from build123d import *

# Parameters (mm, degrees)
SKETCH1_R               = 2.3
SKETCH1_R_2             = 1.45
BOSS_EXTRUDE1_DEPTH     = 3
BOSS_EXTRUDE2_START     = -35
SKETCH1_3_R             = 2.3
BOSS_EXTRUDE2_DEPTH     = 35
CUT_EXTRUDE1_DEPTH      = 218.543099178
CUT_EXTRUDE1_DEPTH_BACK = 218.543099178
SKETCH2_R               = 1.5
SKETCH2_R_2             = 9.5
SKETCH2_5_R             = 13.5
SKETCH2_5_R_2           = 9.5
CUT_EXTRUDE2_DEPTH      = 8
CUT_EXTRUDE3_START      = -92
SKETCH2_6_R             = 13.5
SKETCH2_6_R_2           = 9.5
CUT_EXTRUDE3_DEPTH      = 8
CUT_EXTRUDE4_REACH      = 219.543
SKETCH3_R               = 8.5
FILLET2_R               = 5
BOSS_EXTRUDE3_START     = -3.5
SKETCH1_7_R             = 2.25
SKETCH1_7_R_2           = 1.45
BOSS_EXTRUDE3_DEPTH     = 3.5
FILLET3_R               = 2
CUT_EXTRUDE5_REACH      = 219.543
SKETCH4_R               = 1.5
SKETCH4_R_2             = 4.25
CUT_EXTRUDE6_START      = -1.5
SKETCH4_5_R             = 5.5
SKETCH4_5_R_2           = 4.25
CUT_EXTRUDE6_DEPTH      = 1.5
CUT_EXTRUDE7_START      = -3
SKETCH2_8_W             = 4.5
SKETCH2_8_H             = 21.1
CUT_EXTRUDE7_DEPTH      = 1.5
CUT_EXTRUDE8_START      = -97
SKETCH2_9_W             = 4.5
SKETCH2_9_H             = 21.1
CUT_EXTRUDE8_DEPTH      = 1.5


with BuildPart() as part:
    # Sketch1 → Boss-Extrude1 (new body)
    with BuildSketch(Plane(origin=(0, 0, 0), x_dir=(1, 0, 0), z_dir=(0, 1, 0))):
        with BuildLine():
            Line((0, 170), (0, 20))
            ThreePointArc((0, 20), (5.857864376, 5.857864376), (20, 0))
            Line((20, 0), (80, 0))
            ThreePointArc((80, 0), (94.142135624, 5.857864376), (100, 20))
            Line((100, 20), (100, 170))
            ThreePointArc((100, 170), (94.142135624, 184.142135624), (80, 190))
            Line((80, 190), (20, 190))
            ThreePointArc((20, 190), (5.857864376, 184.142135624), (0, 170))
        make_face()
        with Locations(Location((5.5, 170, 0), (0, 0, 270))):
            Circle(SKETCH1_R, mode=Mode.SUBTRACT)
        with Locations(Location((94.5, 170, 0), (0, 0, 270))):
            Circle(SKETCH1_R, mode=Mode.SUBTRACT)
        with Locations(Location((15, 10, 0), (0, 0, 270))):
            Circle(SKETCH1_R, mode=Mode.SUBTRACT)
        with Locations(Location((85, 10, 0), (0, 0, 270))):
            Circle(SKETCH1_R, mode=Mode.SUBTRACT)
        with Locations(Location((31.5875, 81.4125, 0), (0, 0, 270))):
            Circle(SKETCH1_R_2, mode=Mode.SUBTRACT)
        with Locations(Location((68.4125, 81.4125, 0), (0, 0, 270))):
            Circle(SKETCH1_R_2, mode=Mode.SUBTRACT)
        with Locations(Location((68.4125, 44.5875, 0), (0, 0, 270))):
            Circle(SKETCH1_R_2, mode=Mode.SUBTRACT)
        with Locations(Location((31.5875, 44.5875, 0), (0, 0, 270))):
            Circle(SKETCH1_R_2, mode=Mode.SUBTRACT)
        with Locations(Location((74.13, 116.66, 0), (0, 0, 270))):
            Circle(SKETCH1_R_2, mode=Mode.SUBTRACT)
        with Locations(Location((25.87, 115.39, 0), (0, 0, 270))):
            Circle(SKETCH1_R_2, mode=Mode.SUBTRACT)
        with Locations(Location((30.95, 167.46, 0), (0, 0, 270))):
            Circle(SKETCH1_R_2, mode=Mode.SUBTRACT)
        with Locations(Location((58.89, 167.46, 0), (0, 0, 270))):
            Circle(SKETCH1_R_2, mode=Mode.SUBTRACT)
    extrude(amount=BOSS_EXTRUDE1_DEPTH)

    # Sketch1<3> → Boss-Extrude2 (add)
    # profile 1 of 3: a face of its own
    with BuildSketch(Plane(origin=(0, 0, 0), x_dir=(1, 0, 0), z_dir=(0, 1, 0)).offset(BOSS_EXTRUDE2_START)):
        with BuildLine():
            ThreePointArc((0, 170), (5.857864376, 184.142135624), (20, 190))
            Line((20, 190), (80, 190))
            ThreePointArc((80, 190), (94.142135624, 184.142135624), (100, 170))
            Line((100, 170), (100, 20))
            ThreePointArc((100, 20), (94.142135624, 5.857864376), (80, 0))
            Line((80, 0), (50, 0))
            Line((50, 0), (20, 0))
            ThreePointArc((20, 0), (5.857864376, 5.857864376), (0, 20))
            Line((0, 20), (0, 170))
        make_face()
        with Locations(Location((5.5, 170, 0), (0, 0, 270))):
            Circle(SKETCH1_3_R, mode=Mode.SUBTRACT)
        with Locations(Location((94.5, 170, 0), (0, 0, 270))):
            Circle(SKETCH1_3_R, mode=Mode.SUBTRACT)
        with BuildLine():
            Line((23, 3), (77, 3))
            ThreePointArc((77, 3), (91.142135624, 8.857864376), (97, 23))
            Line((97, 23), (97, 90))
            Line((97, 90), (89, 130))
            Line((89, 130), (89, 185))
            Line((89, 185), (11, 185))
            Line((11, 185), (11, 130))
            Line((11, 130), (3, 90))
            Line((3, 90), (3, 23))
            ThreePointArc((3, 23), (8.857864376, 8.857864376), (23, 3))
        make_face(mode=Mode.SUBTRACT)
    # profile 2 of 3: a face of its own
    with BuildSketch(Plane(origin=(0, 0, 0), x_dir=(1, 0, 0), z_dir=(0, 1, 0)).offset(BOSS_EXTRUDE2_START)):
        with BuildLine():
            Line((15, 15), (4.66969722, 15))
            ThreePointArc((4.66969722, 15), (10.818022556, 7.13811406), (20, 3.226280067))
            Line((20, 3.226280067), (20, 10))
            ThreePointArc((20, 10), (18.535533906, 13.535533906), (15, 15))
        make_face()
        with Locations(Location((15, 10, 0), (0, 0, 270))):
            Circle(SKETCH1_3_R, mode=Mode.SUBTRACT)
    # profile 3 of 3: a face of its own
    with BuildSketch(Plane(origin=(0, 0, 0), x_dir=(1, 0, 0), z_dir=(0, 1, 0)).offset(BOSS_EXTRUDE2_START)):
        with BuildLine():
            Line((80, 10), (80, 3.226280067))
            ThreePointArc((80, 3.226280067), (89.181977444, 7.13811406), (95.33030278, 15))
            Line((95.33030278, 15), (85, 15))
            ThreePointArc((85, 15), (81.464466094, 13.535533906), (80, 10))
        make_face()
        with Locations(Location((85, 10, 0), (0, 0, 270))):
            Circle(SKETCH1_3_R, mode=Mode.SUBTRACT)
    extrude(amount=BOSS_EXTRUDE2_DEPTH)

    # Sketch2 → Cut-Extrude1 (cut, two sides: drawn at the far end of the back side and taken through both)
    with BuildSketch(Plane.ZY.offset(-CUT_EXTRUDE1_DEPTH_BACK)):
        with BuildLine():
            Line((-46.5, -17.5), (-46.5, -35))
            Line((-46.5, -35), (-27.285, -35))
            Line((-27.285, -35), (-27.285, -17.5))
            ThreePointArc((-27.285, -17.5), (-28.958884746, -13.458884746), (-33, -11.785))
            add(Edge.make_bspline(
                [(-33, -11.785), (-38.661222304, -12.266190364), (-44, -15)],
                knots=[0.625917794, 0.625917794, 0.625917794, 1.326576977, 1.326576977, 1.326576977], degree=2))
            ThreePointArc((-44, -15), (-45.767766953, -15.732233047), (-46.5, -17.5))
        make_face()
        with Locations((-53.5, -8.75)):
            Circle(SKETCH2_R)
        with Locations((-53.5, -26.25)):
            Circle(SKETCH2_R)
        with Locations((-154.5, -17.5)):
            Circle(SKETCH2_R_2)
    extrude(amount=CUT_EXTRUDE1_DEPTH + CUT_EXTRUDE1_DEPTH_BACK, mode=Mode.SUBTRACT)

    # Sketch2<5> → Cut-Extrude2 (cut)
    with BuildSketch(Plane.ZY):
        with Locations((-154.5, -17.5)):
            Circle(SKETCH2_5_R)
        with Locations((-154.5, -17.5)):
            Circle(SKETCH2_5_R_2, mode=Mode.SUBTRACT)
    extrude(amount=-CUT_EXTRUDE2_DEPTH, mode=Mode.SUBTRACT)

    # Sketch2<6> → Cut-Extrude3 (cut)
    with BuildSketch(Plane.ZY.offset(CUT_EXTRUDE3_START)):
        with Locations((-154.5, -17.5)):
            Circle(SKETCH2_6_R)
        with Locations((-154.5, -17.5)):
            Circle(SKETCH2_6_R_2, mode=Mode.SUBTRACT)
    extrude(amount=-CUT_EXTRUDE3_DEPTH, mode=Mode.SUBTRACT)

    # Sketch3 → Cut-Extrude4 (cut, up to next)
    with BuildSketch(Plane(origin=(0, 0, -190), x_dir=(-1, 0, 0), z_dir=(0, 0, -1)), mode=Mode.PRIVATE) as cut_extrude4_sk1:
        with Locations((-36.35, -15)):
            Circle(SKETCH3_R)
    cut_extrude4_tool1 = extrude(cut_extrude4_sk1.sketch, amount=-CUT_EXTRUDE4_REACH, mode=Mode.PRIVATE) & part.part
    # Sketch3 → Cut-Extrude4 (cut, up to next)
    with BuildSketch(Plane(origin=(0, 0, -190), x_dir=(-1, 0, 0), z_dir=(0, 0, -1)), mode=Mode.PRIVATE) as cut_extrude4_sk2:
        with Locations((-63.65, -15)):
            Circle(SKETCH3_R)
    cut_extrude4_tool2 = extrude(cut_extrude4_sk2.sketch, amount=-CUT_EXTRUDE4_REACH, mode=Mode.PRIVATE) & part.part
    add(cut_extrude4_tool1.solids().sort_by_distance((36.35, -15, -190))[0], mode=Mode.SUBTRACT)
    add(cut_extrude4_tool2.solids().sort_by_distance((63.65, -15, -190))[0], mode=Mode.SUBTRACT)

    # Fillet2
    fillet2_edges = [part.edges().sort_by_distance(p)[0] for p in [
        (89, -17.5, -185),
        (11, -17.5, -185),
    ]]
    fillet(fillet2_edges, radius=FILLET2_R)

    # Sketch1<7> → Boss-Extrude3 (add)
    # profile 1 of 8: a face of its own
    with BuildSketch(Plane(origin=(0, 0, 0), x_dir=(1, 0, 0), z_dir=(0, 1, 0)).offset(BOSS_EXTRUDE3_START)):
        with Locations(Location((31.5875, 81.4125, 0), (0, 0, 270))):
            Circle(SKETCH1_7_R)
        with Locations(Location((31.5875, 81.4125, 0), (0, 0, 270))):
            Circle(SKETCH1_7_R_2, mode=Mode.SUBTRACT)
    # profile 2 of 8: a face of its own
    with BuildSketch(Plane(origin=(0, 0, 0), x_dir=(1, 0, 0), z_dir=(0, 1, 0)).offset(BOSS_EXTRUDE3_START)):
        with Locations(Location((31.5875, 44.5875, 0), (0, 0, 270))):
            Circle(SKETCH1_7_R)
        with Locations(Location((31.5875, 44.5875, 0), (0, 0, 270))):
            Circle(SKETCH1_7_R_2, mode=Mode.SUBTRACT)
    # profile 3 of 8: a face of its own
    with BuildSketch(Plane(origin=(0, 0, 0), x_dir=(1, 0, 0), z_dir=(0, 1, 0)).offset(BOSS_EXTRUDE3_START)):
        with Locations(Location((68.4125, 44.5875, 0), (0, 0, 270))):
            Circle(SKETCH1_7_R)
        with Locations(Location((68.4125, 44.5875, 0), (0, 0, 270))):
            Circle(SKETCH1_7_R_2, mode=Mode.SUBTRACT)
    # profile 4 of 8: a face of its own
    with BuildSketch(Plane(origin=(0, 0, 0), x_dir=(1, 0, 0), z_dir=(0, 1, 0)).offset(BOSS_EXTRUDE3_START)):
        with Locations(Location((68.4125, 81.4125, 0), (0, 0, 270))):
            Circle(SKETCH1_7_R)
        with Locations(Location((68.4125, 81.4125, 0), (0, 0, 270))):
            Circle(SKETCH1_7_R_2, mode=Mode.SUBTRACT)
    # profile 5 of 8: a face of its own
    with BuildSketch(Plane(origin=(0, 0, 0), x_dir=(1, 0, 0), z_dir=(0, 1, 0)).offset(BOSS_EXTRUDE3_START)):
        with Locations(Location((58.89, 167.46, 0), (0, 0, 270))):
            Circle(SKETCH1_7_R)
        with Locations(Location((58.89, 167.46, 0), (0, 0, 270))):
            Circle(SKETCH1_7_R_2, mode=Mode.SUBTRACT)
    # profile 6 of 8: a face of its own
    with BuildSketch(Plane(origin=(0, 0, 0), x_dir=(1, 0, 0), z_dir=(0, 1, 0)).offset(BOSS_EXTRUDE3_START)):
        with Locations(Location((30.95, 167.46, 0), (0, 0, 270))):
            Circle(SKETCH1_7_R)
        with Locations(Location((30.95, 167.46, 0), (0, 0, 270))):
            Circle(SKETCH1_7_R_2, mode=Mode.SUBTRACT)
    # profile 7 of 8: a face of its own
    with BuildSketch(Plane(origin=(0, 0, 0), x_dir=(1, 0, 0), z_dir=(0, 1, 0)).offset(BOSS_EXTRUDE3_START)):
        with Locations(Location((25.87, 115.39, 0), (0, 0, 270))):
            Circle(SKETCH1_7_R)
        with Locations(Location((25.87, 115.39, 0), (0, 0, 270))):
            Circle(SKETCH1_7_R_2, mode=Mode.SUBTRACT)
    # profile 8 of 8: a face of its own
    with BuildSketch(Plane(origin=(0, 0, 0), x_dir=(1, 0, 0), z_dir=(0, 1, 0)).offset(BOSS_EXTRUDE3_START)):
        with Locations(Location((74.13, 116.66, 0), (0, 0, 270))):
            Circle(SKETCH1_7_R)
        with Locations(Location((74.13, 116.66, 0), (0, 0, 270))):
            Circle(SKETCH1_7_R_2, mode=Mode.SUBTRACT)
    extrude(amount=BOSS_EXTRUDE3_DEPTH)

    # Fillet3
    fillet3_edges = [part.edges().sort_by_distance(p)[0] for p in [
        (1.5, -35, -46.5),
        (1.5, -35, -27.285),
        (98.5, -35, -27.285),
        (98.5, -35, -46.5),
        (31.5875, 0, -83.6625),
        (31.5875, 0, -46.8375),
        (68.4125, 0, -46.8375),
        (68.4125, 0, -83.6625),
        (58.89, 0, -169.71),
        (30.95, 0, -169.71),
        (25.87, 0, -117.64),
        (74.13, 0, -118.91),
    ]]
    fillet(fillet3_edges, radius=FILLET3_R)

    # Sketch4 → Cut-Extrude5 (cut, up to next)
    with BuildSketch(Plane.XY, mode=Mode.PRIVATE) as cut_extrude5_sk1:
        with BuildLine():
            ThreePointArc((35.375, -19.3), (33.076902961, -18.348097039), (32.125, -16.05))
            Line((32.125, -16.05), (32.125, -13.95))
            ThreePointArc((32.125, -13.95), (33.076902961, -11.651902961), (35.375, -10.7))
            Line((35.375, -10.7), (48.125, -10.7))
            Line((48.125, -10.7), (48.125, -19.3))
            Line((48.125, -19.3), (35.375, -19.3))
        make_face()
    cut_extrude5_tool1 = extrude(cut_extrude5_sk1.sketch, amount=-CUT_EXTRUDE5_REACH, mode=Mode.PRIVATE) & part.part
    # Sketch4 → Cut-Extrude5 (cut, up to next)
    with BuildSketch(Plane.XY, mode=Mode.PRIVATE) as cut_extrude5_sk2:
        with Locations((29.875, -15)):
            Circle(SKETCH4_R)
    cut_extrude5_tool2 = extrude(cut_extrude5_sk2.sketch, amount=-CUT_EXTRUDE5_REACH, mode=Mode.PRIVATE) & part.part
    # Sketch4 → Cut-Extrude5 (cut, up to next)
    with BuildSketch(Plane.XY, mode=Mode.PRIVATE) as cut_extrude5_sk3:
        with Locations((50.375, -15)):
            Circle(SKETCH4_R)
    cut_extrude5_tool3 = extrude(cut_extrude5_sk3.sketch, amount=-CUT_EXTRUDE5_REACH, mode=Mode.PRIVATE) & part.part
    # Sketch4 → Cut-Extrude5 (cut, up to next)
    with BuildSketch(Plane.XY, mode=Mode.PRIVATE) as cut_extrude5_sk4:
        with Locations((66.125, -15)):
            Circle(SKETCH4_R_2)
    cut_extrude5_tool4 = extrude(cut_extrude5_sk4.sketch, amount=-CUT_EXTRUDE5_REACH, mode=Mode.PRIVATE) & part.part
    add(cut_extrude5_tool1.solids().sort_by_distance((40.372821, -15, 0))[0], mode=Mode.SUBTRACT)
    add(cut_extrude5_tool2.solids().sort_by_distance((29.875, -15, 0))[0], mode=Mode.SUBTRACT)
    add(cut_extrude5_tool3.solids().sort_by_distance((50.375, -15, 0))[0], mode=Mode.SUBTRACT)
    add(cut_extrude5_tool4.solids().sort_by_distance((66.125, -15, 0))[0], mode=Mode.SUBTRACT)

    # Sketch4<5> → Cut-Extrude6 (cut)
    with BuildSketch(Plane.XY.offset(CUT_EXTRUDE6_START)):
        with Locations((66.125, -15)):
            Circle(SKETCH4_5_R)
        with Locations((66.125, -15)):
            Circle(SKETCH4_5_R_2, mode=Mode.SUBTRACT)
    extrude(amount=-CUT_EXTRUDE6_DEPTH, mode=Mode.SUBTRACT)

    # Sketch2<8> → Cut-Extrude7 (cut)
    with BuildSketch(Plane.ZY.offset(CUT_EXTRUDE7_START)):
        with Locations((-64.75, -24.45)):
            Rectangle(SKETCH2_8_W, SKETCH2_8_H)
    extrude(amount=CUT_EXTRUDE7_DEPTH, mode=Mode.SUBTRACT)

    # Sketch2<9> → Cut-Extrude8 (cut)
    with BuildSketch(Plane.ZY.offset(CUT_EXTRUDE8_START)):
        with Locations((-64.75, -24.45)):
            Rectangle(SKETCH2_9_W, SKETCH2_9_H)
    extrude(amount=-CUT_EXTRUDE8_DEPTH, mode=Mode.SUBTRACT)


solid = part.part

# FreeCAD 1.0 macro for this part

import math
import FreeCAD as App
import Part
import Sketcher
Q = App.Units.Quantity


def edges_at(feature, points):
    """Names of the edges that pass closest to the given points."""
    edges = feature.Shape.Edges
    near = lambda p: min(range(len(edges)), key=lambda i: edges[i].distToShape(Part.Vertex(*p))[0])
    return sorted({f"Edge{near(p) + 1}" for p in points})

doc = App.newDocument("Part")
params = doc.addObject("Spreadsheet::Sheet", "Params")
for row, (alias, value) in enumerate([
    ("sketch1_radius", "20 mm"),
    ("sketch1_diameter", "4.6 mm"),
    ("sketch1_diameter2", "2.9 mm"),
    ("sketch1_width", "60 mm"),
    ("sketch1_height", "150 mm"),
    ("pad1_length", "3 mm"),
    ("sketch2_radius", "20 mm"),
    ("sketch2_radius2", "5 mm"),
    ("sketch2_diameter", "4.6 mm"),
    ("sketch2_width", "60 mm"),
    ("sketch2_width2", "78 mm"),
    ("pad2_length", "35 mm"),
    ("sketch3_diameter", "3 mm"),
    ("sketch3_diameter2", "19 mm"),
    ("sketch3_radius", "2.5 mm"),
    ("sketch3_width", "17.5 mm"),
    ("sketch4_diameter", "27 mm"),
    ("sketch4_diameter2", "19 mm"),
    ("pocket2_length", "8 mm"),
    ("sketch5_diameter", "27 mm"),
    ("sketch5_diameter2", "19 mm"),
    ("pocket3_length", "8 mm"),
    ("sketch6_diameter", "17 mm"),
    ("sketch7_diameter", "17 mm"),
    ("fillet_radius", "5 mm"),
    ("sketch8_diameter", "4.5 mm"),
    ("sketch8_diameter2", "2.9 mm"),
    ("pad3_length", "3.5 mm"),
    ("fillet2_radius", "2 mm"),
    ("sketch9_radius", "3.25 mm"),
    ("sketch9_height", "8.6 mm"),
    ("sketch10_diameter", "3 mm"),
    ("sketch11_diameter", "3 mm"),
    ("sketch12_diameter", "8.5 mm"),
    ("sketch13_diameter", "11 mm"),
    ("sketch13_diameter2", "8.5 mm"),
    ("pocket10_length", "1.5 mm"),
    ("sketch14_width", "21.1 mm"),
    ("sketch14_height", "4.5 mm"),
    ("pocket11_length", "1.5 mm"),
    ("sketch15_width", "21.1 mm"),
    ("sketch15_height", "4.5 mm"),
    ("pocket12_length", "1.5 mm"),
], start=1):
    params.set(f"A{row}", alias)
    params.set(f"B{row}", "=" + value)
    params.setAlias(f"B{row}", alias)

body = doc.addObject("PartDesign::Body", "Body")

sketch1 = body.newObject("Sketcher::SketchObject", "Sketch")
sketch1.AttachmentSupport = (doc.getObject("XZ_Plane"), [""])
sketch1.MapMode = "FlatFace"
sketch1.addGeometry([
    Part.LineSegment(App.Vector(0, -170, 0), App.Vector(0, -20, 0)),
    Part.ArcOfCircle(Part.Circle(App.Vector(20, -20, 0), App.Vector(0, 0, 1), 20), math.radians(90), math.radians(180)),
    Part.LineSegment(App.Vector(20, 0, 0), App.Vector(80, 0, 0)),
    Part.ArcOfCircle(Part.Circle(App.Vector(80, -20, 0), App.Vector(0, 0, 1), 20), math.radians(0), math.radians(90)),
    Part.LineSegment(App.Vector(100, -20, 0), App.Vector(100, -170, 0)),
    Part.ArcOfCircle(Part.Circle(App.Vector(80, -170, 0), App.Vector(0, 0, 1), 20), math.radians(-90), math.radians(0)),
    Part.LineSegment(App.Vector(80, -190, 0), App.Vector(20, -190, 0)),
    Part.ArcOfCircle(Part.Circle(App.Vector(20, -170, 0), App.Vector(0, 0, 1), 20), math.radians(180), math.radians(270)),
    Part.Circle(App.Vector(15, -10, 0), App.Vector(0, 0, 1), 2.3),
    Part.Circle(App.Vector(31.6, -44.6, 0), App.Vector(0, 0, 1), 1.4),
    Part.Circle(App.Vector(31.6, -81.4, 0), App.Vector(0, 0, 1), 1.4),
    Part.Circle(App.Vector(68.4, -44.6, 0), App.Vector(0, 0, 1), 1.4),
    Part.Circle(App.Vector(85, -10, 0), App.Vector(0, 0, 1), 2.3),
    Part.Circle(App.Vector(68.4, -81.4, 0), App.Vector(0, 0, 1), 1.4),
    Part.Circle(App.Vector(25.9, -115.4, 0), App.Vector(0, 0, 1), 1.4),
    Part.Circle(App.Vector(5.5, -170, 0), App.Vector(0, 0, 1), 2.3),
    Part.Circle(App.Vector(30.9, -167.5, 0), App.Vector(0, 0, 1), 1.4),
    Part.Circle(App.Vector(74.1, -116.7, 0), App.Vector(0, 0, 1), 1.4),
    Part.Circle(App.Vector(58.9, -167.5, 0), App.Vector(0, 0, 1), 1.4),
    Part.Circle(App.Vector(94.5, -170, 0), App.Vector(0, 0, 1), 2.3),
], False)
sketch1.addConstraint([
    Sketcher.Constraint("Tangent", 0, 2, 1, 2),
    Sketcher.Constraint("Tangent", 1, 1, 2, 1),
    Sketcher.Constraint("Tangent", 2, 2, 3, 2),
    Sketcher.Constraint("Tangent", 3, 1, 4, 1),
    Sketcher.Constraint("Tangent", 4, 2, 5, 2),
    Sketcher.Constraint("Tangent", 5, 1, 6, 1),
    Sketcher.Constraint("Tangent", 6, 2, 7, 2),
    Sketcher.Constraint("Tangent", 7, 1, 0, 1),
    Sketcher.Constraint("Vertical", 0),
    Sketcher.Constraint("Horizontal", 2),
    Sketcher.Constraint("Vertical", 4),
    Sketcher.Constraint("Horizontal", 6),
    Sketcher.Constraint("Equal", 1, 3),
    Sketcher.Constraint("Equal", 3, 5),
    Sketcher.Constraint("Equal", 5, 7),
    Sketcher.Constraint("Equal", 9, 10),
    Sketcher.Constraint("Equal", 10, 11),
    Sketcher.Constraint("Equal", 8, 12),
    Sketcher.Constraint("Equal", 11, 13),
    Sketcher.Constraint("Equal", 13, 14),
    Sketcher.Constraint("Equal", 12, 15),
    Sketcher.Constraint("Equal", 14, 16),
    Sketcher.Constraint("Equal", 16, 17),
    Sketcher.Constraint("Equal", 17, 18),
    Sketcher.Constraint("Equal", 15, 19),
    Sketcher.Constraint("PointOnObject", 0, 2, -2),
    Sketcher.Constraint("PointOnObject", 1, 1, -1),
    Sketcher.Constraint("Horizontal", 9, 3, 11, 3),
    Sketcher.Constraint("Horizontal", 8, 3, 12, 3),
    Sketcher.Constraint("Horizontal", 10, 3, 13, 3),
    Sketcher.Constraint("Horizontal", 7, 3, 15, 3),
    Sketcher.Constraint("Horizontal", 16, 3, 18, 3),
    Sketcher.Constraint("Horizontal", 15, 3, 19, 3),
    Sketcher.Constraint("Vertical", 9, 3, 10, 3),
    Sketcher.Constraint("Vertical", 11, 3, 13, 3),
    Sketcher.Constraint("Radius", 1, Q("20 mm")),
    Sketcher.Constraint("Diameter", 8, Q("4.6 mm")),
    Sketcher.Constraint("Diameter", 9, Q("2.9 mm")),
    Sketcher.Constraint("DistanceX", 2, 1, 2, 2, Q("60 mm")),
    Sketcher.Constraint("DistanceY", 0, 1, 0, 2, Q("150 mm")),
    Sketcher.Constraint("DistanceX", -1, 1, 8, 3, Q("15 mm")),
    Sketcher.Constraint("DistanceY", 8, 3, -1, 1, Q("10 mm")),
    Sketcher.Constraint("DistanceX", -1, 1, 12, 3, Q("85 mm")),
    Sketcher.Constraint("DistanceX", -1, 1, 15, 3, Q("5.5 mm")),
    Sketcher.Constraint("DistanceX", -1, 1, 19, 3, Q("94.5 mm")),
    Sketcher.Constraint("DistanceY", 16, 3, 17, 3, Q("50.8 mm")),
    Sketcher.Constraint("DistanceX", -1, 1, 14, 3, Q("25.87 mm")),
    Sketcher.Constraint("DistanceY", 14, 3, -1, 1, Q("115.39 mm")),
    Sketcher.Constraint("DistanceX", -1, 1, 16, 3, Q("30.95 mm")),
    Sketcher.Constraint("DistanceY", 16, 3, -1, 1, Q("167.46 mm")),
    Sketcher.Constraint("DistanceX", -1, 1, 17, 3, Q("74.13 mm")),
    Sketcher.Constraint("DistanceX", -1, 1, 18, 3, Q("58.89 mm")),
    Sketcher.Constraint("DistanceY", 10, 3, 9, 3, Q("36.825 mm")),
    Sketcher.Constraint("DistanceX", 9, 3, 11, 3, Q("36.825 mm")),
    Sketcher.Constraint("DistanceX", -1, 1, 9, 3, Q("31.5875 mm")),
    Sketcher.Constraint("DistanceY", 9, 3, -1, 1, Q("44.5875 mm")),
])
sketch1.setExpression("Constraints[35]", "Params.sketch1_radius")
sketch1.setExpression("Constraints[36]", "Params.sketch1_diameter")
sketch1.setExpression("Constraints[37]", "Params.sketch1_diameter2")
sketch1.setExpression("Constraints[38]", "Params.sketch1_width")
sketch1.setExpression("Constraints[39]", "Params.sketch1_height")
pad1 = body.newObject("PartDesign::Pad", "Pad")
pad1.Profile = sketch1
pad1.setExpression("Length", "Params.pad1_length")
pad1.Reversed = True

sketch2 = body.newObject("Sketcher::SketchObject", "Sketch001")
sketch2.AttachmentSupport = (doc.getObject("XZ_Plane"), [""])
sketch2.MapMode = "FlatFace"
sketch2.AttachmentOffset = App.Placement(App.Vector(0, 0, 35), App.Rotation())
sketch2.addGeometry([
    Part.ArcOfCircle(Part.Circle(App.Vector(20, -170, 0), App.Vector(0, 0, 1), 20), math.radians(180), math.radians(270)),
    Part.LineSegment(App.Vector(0, -170, 0), App.Vector(0, -20, 0)),
    Part.ArcOfCircle(Part.Circle(App.Vector(20, -20, 0), App.Vector(0, 0, 1), 20), math.radians(90), math.radians(180)),
    Part.LineSegment(App.Vector(20, 0, 0), App.Vector(80, 0, 0)),
    Part.ArcOfCircle(Part.Circle(App.Vector(80, -20, 0), App.Vector(0, 0, 1), 20), math.radians(0), math.radians(90)),
    Part.LineSegment(App.Vector(100, -20, 0), App.Vector(100, -170, 0)),
    Part.ArcOfCircle(Part.Circle(App.Vector(80, -170, 0), App.Vector(0, 0, 1), 20), math.radians(-90), math.radians(0)),
    Part.LineSegment(App.Vector(80, -190, 0), App.Vector(20, -190, 0)),
    Part.Circle(App.Vector(94.5, -170, 0), App.Vector(0, 0, 1), 2.3),
    Part.ArcOfCircle(Part.Circle(App.Vector(23, -23, 0), App.Vector(0, 0, 1), 20), math.radians(156), math.radians(180)),
    Part.LineSegment(App.Vector(3, -23, 0), App.Vector(3, -90, 0)),
    Part.LineSegment(App.Vector(3, -90, 0), App.Vector(11, -130, 0)),
    Part.LineSegment(App.Vector(11, -130, 0), App.Vector(11, -185, 0)),
    Part.LineSegment(App.Vector(11, -185, 0), App.Vector(89, -185, 0)),
    Part.LineSegment(App.Vector(89, -185, 0), App.Vector(89, -130, 0)),
    Part.LineSegment(App.Vector(89, -130, 0), App.Vector(97, -90, 0)),
    Part.LineSegment(App.Vector(97, -90, 0), App.Vector(97, -23, 0)),
    Part.ArcOfCircle(Part.Circle(App.Vector(77, -23, 0), App.Vector(0, 0, 1), 20), math.radians(0), math.radians(24)),
    Part.LineSegment(App.Vector(95.3, -15, 0), App.Vector(85, -15, 0)),
    Part.ArcOfCircle(Part.Circle(App.Vector(85, -10, 0), App.Vector(0, 0, 1), 5), math.radians(180), math.radians(270)),
    Part.LineSegment(App.Vector(80, -10, 0), App.Vector(80, -3.2, 0)),
    Part.ArcOfCircle(Part.Circle(App.Vector(77, -23, 0), App.Vector(0, 0, 1), 20), math.radians(81.37), math.radians(90)),
    Part.LineSegment(App.Vector(77, -3, 0), App.Vector(23, -3, 0)),
    Part.ArcOfCircle(Part.Circle(App.Vector(23, -23, 0), App.Vector(0, 0, 1), 20), math.radians(90), math.radians(98.63)),
    Part.LineSegment(App.Vector(20, -3.2, 0), App.Vector(20, -10, 0)),
    Part.ArcOfCircle(Part.Circle(App.Vector(15, -10, 0), App.Vector(0, 0, 1), 5), math.radians(-90), math.radians(0)),
    Part.LineSegment(App.Vector(15, -15, 0), App.Vector(4.7, -15, 0)),
    Part.Circle(App.Vector(5.5, -170, 0), App.Vector(0, 0, 1), 2.3),
    Part.Circle(App.Vector(15, -10, 0), App.Vector(0, 0, 1), 2.3),
    Part.Circle(App.Vector(85, -10, 0), App.Vector(0, 0, 1), 2.3),
], False)
sketch2.addConstraint([
    Sketcher.Constraint("Tangent", 0, 1, 1, 1),
    Sketcher.Constraint("Tangent", 1, 2, 2, 2),
    Sketcher.Constraint("Tangent", 2, 1, 3, 1),
    Sketcher.Constraint("Tangent", 3, 2, 4, 2),
    Sketcher.Constraint("Tangent", 4, 1, 5, 1),
    Sketcher.Constraint("Tangent", 5, 2, 6, 2),
    Sketcher.Constraint("Tangent", 6, 1, 7, 1),
    Sketcher.Constraint("Tangent", 7, 2, 0, 2),
    Sketcher.Constraint("Tangent", 9, 2, 10, 1),
    Sketcher.Constraint("Coincident", 10, 2, 11, 1),
    Sketcher.Constraint("Coincident", 11, 2, 12, 1),
    Sketcher.Constraint("Coincident", 12, 2, 13, 1),
    Sketcher.Constraint("Coincident", 13, 2, 14, 1),
    Sketcher.Constraint("Coincident", 14, 2, 15, 1),
    Sketcher.Constraint("Coincident", 15, 2, 16, 1),
    Sketcher.Constraint("Tangent", 16, 2, 17, 1),
    Sketcher.Constraint("Coincident", 17, 2, 18, 1),
    Sketcher.Constraint("Tangent", 18, 2, 19, 2),
    Sketcher.Constraint("Tangent", 19, 1, 20, 1),
    Sketcher.Constraint("Coincident", 20, 2, 21, 1),
    Sketcher.Constraint("Tangent", 21, 2, 22, 1),
    Sketcher.Constraint("Tangent", 22, 2, 23, 1),
    Sketcher.Constraint("Coincident", 23, 2, 24, 1),
    Sketcher.Constraint("Tangent", 24, 2, 25, 2),
    Sketcher.Constraint("Tangent", 25, 1, 26, 1),
    Sketcher.Constraint("Coincident", 26, 2, 9, 1),
    Sketcher.Constraint("Vertical", 1),
    Sketcher.Constraint("Horizontal", 3),
    Sketcher.Constraint("Vertical", 5),
    Sketcher.Constraint("Horizontal", 7),
    Sketcher.Constraint("Vertical", 10),
    Sketcher.Constraint("Vertical", 12),
    Sketcher.Constraint("Horizontal", 13),
    Sketcher.Constraint("Vertical", 14),
    Sketcher.Constraint("Vertical", 16),
    Sketcher.Constraint("Horizontal", 18),
    Sketcher.Constraint("Vertical", 20),
    Sketcher.Constraint("Horizontal", 22),
    Sketcher.Constraint("Vertical", 24),
    Sketcher.Constraint("Horizontal", 26),
    Sketcher.Constraint("Coincident", 21, 3, 17, 3),
    Sketcher.Constraint("Coincident", 23, 3, 9, 3),
    Sketcher.Constraint("Coincident", 28, 3, 25, 3),
    Sketcher.Constraint("Coincident", 29, 3, 19, 3),
    Sketcher.Constraint("Equal", 0, 2),
    Sketcher.Constraint("Equal", 2, 4),
    Sketcher.Constraint("Equal", 4, 6),
    Sketcher.Constraint("Equal", 6, 9),
    Sketcher.Constraint("Equal", 9, 17),
    Sketcher.Constraint("Equal", 17, 21),
    Sketcher.Constraint("Equal", 21, 23),
    Sketcher.Constraint("Equal", 19, 25),
    Sketcher.Constraint("Equal", 8, 27),
    Sketcher.Constraint("Equal", 27, 28),
    Sketcher.Constraint("Equal", 28, 29),
    Sketcher.Constraint("PointOnObject", 0, 1, -2),
    Sketcher.Constraint("PointOnObject", 2, 1, -1),
    Sketcher.Constraint("Horizontal", 6, 3, 8, 3),
    Sketcher.Constraint("Horizontal", 19, 3, 25, 3),
    Sketcher.Constraint("Horizontal", 8, 3, 27, 3),
    Sketcher.Constraint("Horizontal", 11, 2, 14, 2),
    Sketcher.Constraint("Horizontal", 10, 2, 15, 2),
    Sketcher.Constraint("Horizontal", 20, 2, 23, 2),
    Sketcher.Constraint("Vertical", 6, 1, 19, 1),
    Sketcher.Constraint("Vertical", 7, 2, 23, 2),
    Sketcher.Constraint("Equal", 11, 15),
    Sketcher.Constraint("Radius", 0, Q("20 mm")),
    Sketcher.Constraint("Radius", 19, Q("5 mm")),
    Sketcher.Constraint("Diameter", 8, Q("4.6 mm")),
    Sketcher.Constraint("DistanceX", 3, 1, 3, 2, Q("60 mm")),
    Sketcher.Constraint("DistanceX", 13, 1, 13, 2, Q("78 mm")),
    Sketcher.Constraint("DistanceX", 22, 2, 22, 1, Q("54 mm")),
    Sketcher.Constraint("DistanceY", 1, 1, 1, 2, Q("150 mm")),
    Sketcher.Constraint("DistanceY", 10, 2, 10, 1, Q("67 mm")),
    Sketcher.Constraint("DistanceY", 12, 2, 12, 1, Q("55 mm")),
    Sketcher.Constraint("DistanceY", 9, 3, -1, 1, Q("23 mm")),
    Sketcher.Constraint("DistanceY", 19, 3, -1, 1, Q("10 mm")),
    Sketcher.Constraint("DistanceY", 11, 2, -1, 1, Q("130 mm")),
    Sketcher.Constraint("DistanceX", 27, 3, 8, 3, Q("89 mm")),
    Sketcher.Constraint("DistanceX", -1, 1, 8, 3, Q("94.5 mm")),
])
sketch2.setExpression("Constraints[66]", "Params.sketch2_radius")
sketch2.setExpression("Constraints[67]", "Params.sketch2_radius2")
sketch2.setExpression("Constraints[68]", "Params.sketch2_diameter")
sketch2.setExpression("Constraints[69]", "Params.sketch2_width")
sketch2.setExpression("Constraints[70]", "Params.sketch2_width2")
pad2 = body.newObject("PartDesign::Pad", "Pad001")
pad2.Profile = sketch2
pad2.setExpression("Length", "Params.pad2_length")
pad2.Reversed = True

sketch3 = body.newObject("Sketcher::SketchObject", "Sketch002")
sketch3.AttachmentSupport = (doc.getObject("YZ_Plane"), [""])
sketch3.MapMode = "FlatFace"
sketch3.addGeometry([
    Part.LineSegment(App.Vector(-17.5, -46.5, 0), App.Vector(-35, -46.5, 0)),
    Part.LineSegment(App.Vector(-35, -46.5, 0), App.Vector(-35, -27.285, 0)),
    Part.LineSegment(App.Vector(-35, -27.285, 0), App.Vector(-17.5, -27.285, 0)),
    Part.ArcOfCircle(Part.Circle(App.Vector(-17.5, -33, 0), App.Vector(0, 0, 1), 5.715), math.radians(0), math.radians(90)),
    Part.BSplineCurve([App.Vector(-11.785, -33, 0), App.Vector(-12.26619, -38.661222, 0), App.Vector(-15, -44, 0)], [3, 3], [0.625917794, 1.326576977], False, 2, [1, 1, 1], False),
    Part.ArcOfCircle(Part.Circle(App.Vector(-17.5, -44, 0), App.Vector(0, 0, 1), 2.5), math.radians(-90), math.radians(0)),
    Part.Circle(App.Vector(-8.75, -53.5, 0), App.Vector(0, 0, 1), 1.5),
    Part.Circle(App.Vector(-26.25, -53.5, 0), App.Vector(0, 0, 1), 1.5),
    Part.Circle(App.Vector(-17.5, -154.5, 0), App.Vector(0, 0, 1), 9.5),
], False)
sketch3.addConstraint([
    Sketcher.Constraint("Block", 4),
    Sketcher.Constraint("Coincident", 0, 2, 1, 1),
    Sketcher.Constraint("Coincident", 1, 2, 2, 1),
    Sketcher.Constraint("Tangent", 2, 2, 3, 2),
    Sketcher.Constraint("Coincident", 3, 1, 4, 1),
    Sketcher.Constraint("Coincident", 4, 2, 5, 2),
    Sketcher.Constraint("Tangent", 5, 1, 0, 1),
    Sketcher.Constraint("Horizontal", 0),
    Sketcher.Constraint("Vertical", 1),
    Sketcher.Constraint("Horizontal", 2),
    Sketcher.Constraint("Equal", 6, 7),
    Sketcher.Constraint("Horizontal", 6, 3, 7, 3),
    Sketcher.Constraint("Vertical", 3, 3, 5, 3),
    Sketcher.Constraint("Vertical", 5, 3, 8, 3),
    Sketcher.Constraint("Diameter", 6, Q("3 mm")),
    Sketcher.Constraint("Diameter", 8, Q("19 mm")),
    Sketcher.Constraint("Radius", 5, Q("2.5 mm")),
    Sketcher.Constraint("DistanceX", 0, 2, 0, 1, Q("17.5 mm")),
    Sketcher.Constraint("DistanceY", 3, 3, -1, 1, Q("33 mm")),
    Sketcher.Constraint("DistanceY", 5, 3, -1, 1, Q("44 mm")),
    Sketcher.Constraint("DistanceY", 8, 3, 6, 3, Q("101 mm")),
    Sketcher.Constraint("DistanceY", 7, 3, 0, 2, Q("7 mm")),
    Sketcher.Constraint("DistanceX", 7, 3, 6, 3, Q("17.5 mm")),
    Sketcher.Constraint("DistanceX", 6, 3, -1, 1, Q("8.75 mm")),
])
sketch3.setExpression("Constraints[14]", "Params.sketch3_diameter")
sketch3.setExpression("Constraints[15]", "Params.sketch3_diameter2")
sketch3.setExpression("Constraints[16]", "Params.sketch3_radius")
sketch3.setExpression("Constraints[17]", "Params.sketch3_width")
pocket1 = body.newObject("PartDesign::Pocket", "Pocket")
pocket1.Profile = sketch3
pocket1.Type = "ThroughAll"
pocket1.Midplane = True

sketch4 = body.newObject("Sketcher::SketchObject", "Sketch003")
sketch4.AttachmentSupport = (doc.getObject("YZ_Plane"), [""])
sketch4.MapMode = "FlatFace"
sketch4.addGeometry([
    Part.Circle(App.Vector(-18, -154, 0), App.Vector(0, 0, 1), 14),
    Part.Circle(App.Vector(-18, -154, 0), App.Vector(0, 0, 1), 10),
], False)
sketch4.addConstraint([
    Sketcher.Constraint("Coincident", 1, 3, 0, 3),
    Sketcher.Constraint("Diameter", 0, Q("27 mm")),
    Sketcher.Constraint("Diameter", 1, Q("19 mm")),
    Sketcher.Constraint("DistanceX", 0, 3, -1, 1, Q("17.5 mm")),
    Sketcher.Constraint("DistanceY", 0, 3, -1, 1, Q("154.5 mm")),
])
sketch4.setExpression("Constraints[1]", "Params.sketch4_diameter")
sketch4.setExpression("Constraints[2]", "Params.sketch4_diameter2")
pocket2 = body.newObject("PartDesign::Pocket", "Pocket001")
pocket2.Profile = sketch4
pocket2.setExpression("Length", "Params.pocket2_length")
pocket2.Reversed = True

sketch5 = body.newObject("Sketcher::SketchObject", "Sketch004")
sketch5.AttachmentSupport = (doc.getObject("YZ_Plane"), [""])
sketch5.MapMode = "FlatFace"
sketch5.AttachmentOffset = App.Placement(App.Vector(0, 0, 92), App.Rotation())
sketch5.addGeometry([
    Part.Circle(App.Vector(-18, -154, 0), App.Vector(0, 0, 1), 14),
    Part.Circle(App.Vector(-18, -154, 0), App.Vector(0, 0, 1), 10),
], False)
sketch5.addConstraint([
    Sketcher.Constraint("Coincident", 1, 3, 0, 3),
    Sketcher.Constraint("Diameter", 0, Q("27 mm")),
    Sketcher.Constraint("Diameter", 1, Q("19 mm")),
    Sketcher.Constraint("DistanceX", 0, 3, -1, 1, Q("17.5 mm")),
    Sketcher.Constraint("DistanceY", 0, 3, -1, 1, Q("154.5 mm")),
])
sketch5.setExpression("Constraints[1]", "Params.sketch5_diameter")
sketch5.setExpression("Constraints[2]", "Params.sketch5_diameter2")
pocket3 = body.newObject("PartDesign::Pocket", "Pocket002")
pocket3.Profile = sketch5
pocket3.setExpression("Length", "Params.pocket3_length")
pocket3.Reversed = True

sketch6 = body.newObject("Sketcher::SketchObject", "Sketch005")
sketch6.AttachmentSupport = (doc.getObject("XY_Plane"), [""])
sketch6.MapMode = "FlatFace"
sketch6.AttachmentOffset = App.Placement(App.Vector(0, 0, -190), App.Rotation())
sketch6.addGeometry(Part.Circle(App.Vector(36, -15, 0), App.Vector(0, 0, 1), 8), False)
sketch6.addConstraint([
    Sketcher.Constraint("Diameter", 0, Q("17 mm")),
    Sketcher.Constraint("DistanceY", 0, 3, -1, 1, Q("15 mm")),
    Sketcher.Constraint("DistanceX", -1, 1, 0, 3, Q("36.35 mm")),
])
sketch6.setExpression("Constraints[0]", "Params.sketch6_diameter")
pocket4 = body.newObject("PartDesign::Pocket", "Pocket003")
pocket4.Profile = sketch6
pocket4.Type = "UpToFirst"
pocket4.Reversed = True

sketch7 = body.newObject("Sketcher::SketchObject", "Sketch006")
sketch7.AttachmentSupport = (doc.getObject("XY_Plane"), [""])
sketch7.MapMode = "FlatFace"
sketch7.AttachmentOffset = App.Placement(App.Vector(0, 0, -190), App.Rotation())
sketch7.addGeometry(Part.Circle(App.Vector(64, -15, 0), App.Vector(0, 0, 1), 8), False)
sketch7.addConstraint([
    Sketcher.Constraint("Diameter", 0, Q("17 mm")),
    Sketcher.Constraint("DistanceY", 0, 3, -1, 1, Q("15 mm")),
    Sketcher.Constraint("DistanceX", -1, 1, 0, 3, Q("63.65 mm")),
])
sketch7.setExpression("Constraints[0]", "Params.sketch7_diameter")
pocket5 = body.newObject("PartDesign::Pocket", "Pocket004")
pocket5.Profile = sketch7
pocket5.Type = "UpToFirst"
pocket5.Reversed = True
doc.recompute()

fillet = body.newObject("PartDesign::Fillet", "Fillet")
fillet.Base = (pocket5, edges_at(pocket5, [(89, -17.5, -185), (11, -17.5, -185)]))
fillet.setExpression("Radius", "Params.fillet_radius")

sketch8 = body.newObject("Sketcher::SketchObject", "Sketch007")
sketch8.AttachmentSupport = (doc.getObject("XZ_Plane"), [""])
sketch8.MapMode = "FlatFace"
sketch8.AttachmentOffset = App.Placement(App.Vector(0, 0, 3.5), App.Rotation())
sketch8.addGeometry([
    Part.Circle(App.Vector(31.6, -81.4, 0), App.Vector(0, 0, 1), 2.2),
    Part.Circle(App.Vector(31.6, -81.4, 0), App.Vector(0, 0, 1), 1.4),
    Part.Circle(App.Vector(31.6, -44.6, 0), App.Vector(0, 0, 1), 2.2),
    Part.Circle(App.Vector(31.6, -44.6, 0), App.Vector(0, 0, 1), 1.4),
    Part.Circle(App.Vector(68.4, -44.6, 0), App.Vector(0, 0, 1), 2.2),
    Part.Circle(App.Vector(68.4, -44.6, 0), App.Vector(0, 0, 1), 1.4),
    Part.Circle(App.Vector(68.4, -81.4, 0), App.Vector(0, 0, 1), 2.2),
    Part.Circle(App.Vector(68.4, -81.4, 0), App.Vector(0, 0, 1), 1.4),
    Part.Circle(App.Vector(58.9, -167.5, 0), App.Vector(0, 0, 1), 2.2),
    Part.Circle(App.Vector(58.9, -167.5, 0), App.Vector(0, 0, 1), 1.4),
    Part.Circle(App.Vector(30.9, -167.5, 0), App.Vector(0, 0, 1), 2.2),
    Part.Circle(App.Vector(30.9, -167.5, 0), App.Vector(0, 0, 1), 1.4),
    Part.Circle(App.Vector(25.9, -115.4, 0), App.Vector(0, 0, 1), 2.2),
    Part.Circle(App.Vector(25.9, -115.4, 0), App.Vector(0, 0, 1), 1.4),
    Part.Circle(App.Vector(74.1, -116.7, 0), App.Vector(0, 0, 1), 2.2),
    Part.Circle(App.Vector(74.1, -116.7, 0), App.Vector(0, 0, 1), 1.4),
], False)
sketch8.addConstraint([
    Sketcher.Constraint("Coincident", 1, 3, 0, 3),
    Sketcher.Constraint("Coincident", 3, 3, 2, 3),
    Sketcher.Constraint("Coincident", 5, 3, 4, 3),
    Sketcher.Constraint("Coincident", 7, 3, 6, 3),
    Sketcher.Constraint("Coincident", 9, 3, 8, 3),
    Sketcher.Constraint("Coincident", 11, 3, 10, 3),
    Sketcher.Constraint("Coincident", 13, 3, 12, 3),
    Sketcher.Constraint("Coincident", 15, 3, 14, 3),
    Sketcher.Constraint("Equal", 0, 2),
    Sketcher.Constraint("Equal", 1, 3),
    Sketcher.Constraint("Equal", 2, 4),
    Sketcher.Constraint("Equal", 3, 5),
    Sketcher.Constraint("Equal", 4, 6),
    Sketcher.Constraint("Equal", 5, 7),
    Sketcher.Constraint("Equal", 6, 8),
    Sketcher.Constraint("Equal", 7, 9),
    Sketcher.Constraint("Equal", 8, 10),
    Sketcher.Constraint("Equal", 9, 11),
    Sketcher.Constraint("Equal", 10, 12),
    Sketcher.Constraint("Equal", 11, 13),
    Sketcher.Constraint("Equal", 12, 14),
    Sketcher.Constraint("Equal", 13, 15),
    Sketcher.Constraint("Horizontal", 3, 3, 4, 3),
    Sketcher.Constraint("Horizontal", 1, 3, 6, 3),
    Sketcher.Constraint("Horizontal", 9, 3, 10, 3),
    Sketcher.Constraint("Vertical", 1, 3, 2, 3),
    Sketcher.Constraint("Vertical", 5, 3, 6, 3),
    Sketcher.Constraint("Diameter", 0, Q("4.5 mm")),
    Sketcher.Constraint("Diameter", 1, Q("2.9 mm")),
    Sketcher.Constraint("DistanceY", 8, 3, 14, 3, Q("50.8 mm")),
    Sketcher.Constraint("DistanceX", -1, 1, 8, 3, Q("58.89 mm")),
    Sketcher.Constraint("DistanceY", 8, 3, -1, 1, Q("167.46 mm")),
    Sketcher.Constraint("DistanceX", -1, 1, 10, 3, Q("30.95 mm")),
    Sketcher.Constraint("DistanceX", -1, 1, 12, 3, Q("25.87 mm")),
    Sketcher.Constraint("DistanceY", 12, 3, -1, 1, Q("115.39 mm")),
    Sketcher.Constraint("DistanceX", -1, 1, 14, 3, Q("74.13 mm")),
    Sketcher.Constraint("DistanceY", 0, 3, 2, 3, Q("36.825 mm")),
    Sketcher.Constraint("DistanceX", 2, 3, 4, 3, Q("36.825 mm")),
    Sketcher.Constraint("DistanceX", -1, 1, 0, 3, Q("31.5875 mm")),
    Sketcher.Constraint("DistanceY", 0, 3, -1, 1, Q("81.4125 mm")),
])
sketch8.setExpression("Constraints[27]", "Params.sketch8_diameter")
sketch8.setExpression("Constraints[28]", "Params.sketch8_diameter2")
pad3 = body.newObject("PartDesign::Pad", "Pad002")
pad3.Profile = sketch8
pad3.setExpression("Length", "Params.pad3_length")
pad3.Reversed = True
doc.recompute()

fillet2 = body.newObject("PartDesign::Fillet", "Fillet001")
fillet2.Base = (pad3, edges_at(pad3, [
    (1.5, -35, -46.5),
    (1.5, -35, -27.285),
    (98.5, -35, -27.285),
    (98.5, -35, -46.5),
    (31.587, 0, -83.662),
    (31.587, 0, -46.837),
    (68.412, 0, -46.837),
    (68.412, 0, -83.662),
    (58.89, 0, -169.71),
    (30.95, 0, -169.71),
    (25.87, 0, -117.64),
    (74.13, 0, -118.91),
]))
fillet2.setExpression("Radius", "Params.fillet2_radius")

sketch9 = body.newObject("Sketcher::SketchObject", "Sketch008")
sketch9.AttachmentSupport = (doc.getObject("XY_Plane"), [""])
sketch9.MapMode = "FlatFace"
sketch9.addGeometry([
    Part.ArcOfCircle(Part.Circle(App.Vector(35.4, -16.1, 0), App.Vector(0, 0, 1), 3.2), math.radians(180), math.radians(270)),
    Part.LineSegment(App.Vector(35.4, -19.3, 0), App.Vector(48.1, -19.3, 0)),
    Part.LineSegment(App.Vector(48.1, -19.3, 0), App.Vector(48.1, -10.7, 0)),
    Part.LineSegment(App.Vector(48.1, -10.7, 0), App.Vector(35.4, -10.7, 0)),
    Part.ArcOfCircle(Part.Circle(App.Vector(35.4, -13.9, 0), App.Vector(0, 0, 1), 3.2), math.radians(90), math.radians(180)),
    Part.LineSegment(App.Vector(32.1, -13.9, 0), App.Vector(32.1, -16.1, 0)),
], False)
sketch9.addConstraint([
    Sketcher.Constraint("Tangent", 0, 2, 1, 1),
    Sketcher.Constraint("Coincident", 1, 2, 2, 1),
    Sketcher.Constraint("Coincident", 2, 2, 3, 1),
    Sketcher.Constraint("Tangent", 3, 2, 4, 1),
    Sketcher.Constraint("Tangent", 4, 2, 5, 1),
    Sketcher.Constraint("Tangent", 5, 2, 0, 1),
    Sketcher.Constraint("Horizontal", 1),
    Sketcher.Constraint("Vertical", 2),
    Sketcher.Constraint("Horizontal", 3),
    Sketcher.Constraint("Vertical", 5),
    Sketcher.Constraint("Equal", 0, 4),
    Sketcher.Constraint("Radius", 0, Q("3.25 mm")),
    Sketcher.Constraint("DistanceY", 2, 1, 2, 2, Q("8.6 mm")),
    Sketcher.Constraint("DistanceX", 4, 2, 2, 2, Q("16 mm")),
    Sketcher.Constraint("DistanceY", 0, 2, -1, 1, Q("19.3 mm")),
    Sketcher.Constraint("DistanceX", -1, 1, 0, 3, Q("35.375 mm")),
])
sketch9.setExpression("Constraints[11]", "Params.sketch9_radius")
sketch9.setExpression("Constraints[12]", "Params.sketch9_height")
pocket6 = body.newObject("PartDesign::Pocket", "Pocket005")
pocket6.Profile = sketch9
pocket6.Type = "UpToFirst"

sketch10 = body.newObject("Sketcher::SketchObject", "Sketch009")
sketch10.AttachmentSupport = (doc.getObject("XY_Plane"), [""])
sketch10.MapMode = "FlatFace"
sketch10.addGeometry(Part.Circle(App.Vector(29.9, -15, 0), App.Vector(0, 0, 1), 1.5), False)
sketch10.addConstraint([
    Sketcher.Constraint("Diameter", 0, Q("3 mm")),
    Sketcher.Constraint("DistanceY", 0, 3, -1, 1, Q("15 mm")),
    Sketcher.Constraint("DistanceX", -1, 1, 0, 3, Q("29.875 mm")),
])
sketch10.setExpression("Constraints[0]", "Params.sketch10_diameter")
pocket7 = body.newObject("PartDesign::Pocket", "Pocket006")
pocket7.Profile = sketch10
pocket7.Type = "UpToFirst"

sketch11 = body.newObject("Sketcher::SketchObject", "Sketch010")
sketch11.AttachmentSupport = (doc.getObject("XY_Plane"), [""])
sketch11.MapMode = "FlatFace"
sketch11.addGeometry(Part.Circle(App.Vector(50.4, -15, 0), App.Vector(0, 0, 1), 1.5), False)
sketch11.addConstraint([
    Sketcher.Constraint("Diameter", 0, Q("3 mm")),
    Sketcher.Constraint("DistanceY", 0, 3, -1, 1, Q("15 mm")),
    Sketcher.Constraint("DistanceX", -1, 1, 0, 3, Q("50.375 mm")),
])
sketch11.setExpression("Constraints[0]", "Params.sketch11_diameter")
pocket8 = body.newObject("PartDesign::Pocket", "Pocket007")
pocket8.Profile = sketch11
pocket8.Type = "UpToFirst"

sketch12 = body.newObject("Sketcher::SketchObject", "Sketch011")
sketch12.AttachmentSupport = (doc.getObject("XY_Plane"), [""])
sketch12.MapMode = "FlatFace"
sketch12.addGeometry(Part.Circle(App.Vector(66.1, -15, 0), App.Vector(0, 0, 1), 4.2), False)
sketch12.addConstraint([
    Sketcher.Constraint("Diameter", 0, Q("8.5 mm")),
    Sketcher.Constraint("DistanceY", 0, 3, -1, 1, Q("15 mm")),
    Sketcher.Constraint("DistanceX", -1, 1, 0, 3, Q("66.125 mm")),
])
sketch12.setExpression("Constraints[0]", "Params.sketch12_diameter")
pocket9 = body.newObject("PartDesign::Pocket", "Pocket008")
pocket9.Profile = sketch12
pocket9.Type = "UpToFirst"

sketch13 = body.newObject("Sketcher::SketchObject", "Sketch012")
sketch13.AttachmentSupport = (doc.getObject("XY_Plane"), [""])
sketch13.MapMode = "FlatFace"
sketch13.AttachmentOffset = App.Placement(App.Vector(0, 0, -1.5), App.Rotation())
sketch13.addGeometry([
    Part.Circle(App.Vector(66.1, -15, 0), App.Vector(0, 0, 1), 5.5),
    Part.Circle(App.Vector(66.1, -15, 0), App.Vector(0, 0, 1), 4.2),
], False)
sketch13.addConstraint([
    Sketcher.Constraint("Coincident", 1, 3, 0, 3),
    Sketcher.Constraint("Diameter", 0, Q("11 mm")),
    Sketcher.Constraint("Diameter", 1, Q("8.5 mm")),
    Sketcher.Constraint("DistanceY", 0, 3, -1, 1, Q("15 mm")),
    Sketcher.Constraint("DistanceX", -1, 1, 0, 3, Q("66.125 mm")),
])
sketch13.setExpression("Constraints[1]", "Params.sketch13_diameter")
sketch13.setExpression("Constraints[2]", "Params.sketch13_diameter2")
pocket10 = body.newObject("PartDesign::Pocket", "Pocket009")
pocket10.Profile = sketch13
pocket10.setExpression("Length", "Params.pocket10_length")

sketch14 = body.newObject("Sketcher::SketchObject", "Sketch013")
sketch14.AttachmentSupport = (doc.getObject("YZ_Plane"), [""])
sketch14.MapMode = "FlatFace"
sketch14.AttachmentOffset = App.Placement(App.Vector(0, 0, 3), App.Rotation())
sketch14.addGeometry([
    Part.LineSegment(App.Vector(-13.9, -67, 0), App.Vector(-35, -67, 0)),
    Part.LineSegment(App.Vector(-35, -67, 0), App.Vector(-35, -62.5, 0)),
    Part.LineSegment(App.Vector(-35, -62.5, 0), App.Vector(-13.9, -62.5, 0)),
    Part.LineSegment(App.Vector(-13.9, -62.5, 0), App.Vector(-13.9, -67, 0)),
], False)
sketch14.addConstraint([
    Sketcher.Constraint("Coincident", 0, 2, 1, 1),
    Sketcher.Constraint("Coincident", 1, 2, 2, 1),
    Sketcher.Constraint("Coincident", 2, 2, 3, 1),
    Sketcher.Constraint("Coincident", 3, 2, 0, 1),
    Sketcher.Constraint("Horizontal", 0),
    Sketcher.Constraint("Vertical", 1),
    Sketcher.Constraint("Horizontal", 2),
    Sketcher.Constraint("Vertical", 3),
    Sketcher.Constraint("DistanceX", 0, 2, 0, 1, Q("21.1 mm")),
    Sketcher.Constraint("DistanceY", 1, 1, 1, 2, Q("4.5 mm")),
    Sketcher.Constraint("DistanceX", 0, 2, -1, 1, Q("35 mm")),
    Sketcher.Constraint("DistanceY", 0, 2, -1, 1, Q("67 mm")),
])
sketch14.setExpression("Constraints[8]", "Params.sketch14_width")
sketch14.setExpression("Constraints[9]", "Params.sketch14_height")
pocket11 = body.newObject("PartDesign::Pocket", "Pocket010")
pocket11.Profile = sketch14
pocket11.setExpression("Length", "Params.pocket11_length")

sketch15 = body.newObject("Sketcher::SketchObject", "Sketch014")
sketch15.AttachmentSupport = (doc.getObject("YZ_Plane"), [""])
sketch15.MapMode = "FlatFace"
sketch15.AttachmentOffset = App.Placement(App.Vector(0, 0, 97), App.Rotation())
sketch15.addGeometry([
    Part.LineSegment(App.Vector(-13.9, -67, 0), App.Vector(-35, -67, 0)),
    Part.LineSegment(App.Vector(-35, -67, 0), App.Vector(-35, -62.5, 0)),
    Part.LineSegment(App.Vector(-35, -62.5, 0), App.Vector(-13.9, -62.5, 0)),
    Part.LineSegment(App.Vector(-13.9, -62.5, 0), App.Vector(-13.9, -67, 0)),
], False)
sketch15.addConstraint([
    Sketcher.Constraint("Coincident", 0, 2, 1, 1),
    Sketcher.Constraint("Coincident", 1, 2, 2, 1),
    Sketcher.Constraint("Coincident", 2, 2, 3, 1),
    Sketcher.Constraint("Coincident", 3, 2, 0, 1),
    Sketcher.Constraint("Horizontal", 0),
    Sketcher.Constraint("Vertical", 1),
    Sketcher.Constraint("Horizontal", 2),
    Sketcher.Constraint("Vertical", 3),
    Sketcher.Constraint("DistanceX", 0, 2, 0, 1, Q("21.1 mm")),
    Sketcher.Constraint("DistanceY", 1, 1, 1, 2, Q("4.5 mm")),
    Sketcher.Constraint("DistanceX", 0, 2, -1, 1, Q("35 mm")),
    Sketcher.Constraint("DistanceY", 0, 2, -1, 1, Q("67 mm")),
])
sketch15.setExpression("Constraints[8]", "Params.sketch15_width")
sketch15.setExpression("Constraints[9]", "Params.sketch15_height")
pocket12 = body.newObject("PartDesign::Pocket", "Pocket011")
pocket12.Profile = sketch15
pocket12.setExpression("Length", "Params.pocket12_length")
pocket12.Reversed = True

doc.recompute()
